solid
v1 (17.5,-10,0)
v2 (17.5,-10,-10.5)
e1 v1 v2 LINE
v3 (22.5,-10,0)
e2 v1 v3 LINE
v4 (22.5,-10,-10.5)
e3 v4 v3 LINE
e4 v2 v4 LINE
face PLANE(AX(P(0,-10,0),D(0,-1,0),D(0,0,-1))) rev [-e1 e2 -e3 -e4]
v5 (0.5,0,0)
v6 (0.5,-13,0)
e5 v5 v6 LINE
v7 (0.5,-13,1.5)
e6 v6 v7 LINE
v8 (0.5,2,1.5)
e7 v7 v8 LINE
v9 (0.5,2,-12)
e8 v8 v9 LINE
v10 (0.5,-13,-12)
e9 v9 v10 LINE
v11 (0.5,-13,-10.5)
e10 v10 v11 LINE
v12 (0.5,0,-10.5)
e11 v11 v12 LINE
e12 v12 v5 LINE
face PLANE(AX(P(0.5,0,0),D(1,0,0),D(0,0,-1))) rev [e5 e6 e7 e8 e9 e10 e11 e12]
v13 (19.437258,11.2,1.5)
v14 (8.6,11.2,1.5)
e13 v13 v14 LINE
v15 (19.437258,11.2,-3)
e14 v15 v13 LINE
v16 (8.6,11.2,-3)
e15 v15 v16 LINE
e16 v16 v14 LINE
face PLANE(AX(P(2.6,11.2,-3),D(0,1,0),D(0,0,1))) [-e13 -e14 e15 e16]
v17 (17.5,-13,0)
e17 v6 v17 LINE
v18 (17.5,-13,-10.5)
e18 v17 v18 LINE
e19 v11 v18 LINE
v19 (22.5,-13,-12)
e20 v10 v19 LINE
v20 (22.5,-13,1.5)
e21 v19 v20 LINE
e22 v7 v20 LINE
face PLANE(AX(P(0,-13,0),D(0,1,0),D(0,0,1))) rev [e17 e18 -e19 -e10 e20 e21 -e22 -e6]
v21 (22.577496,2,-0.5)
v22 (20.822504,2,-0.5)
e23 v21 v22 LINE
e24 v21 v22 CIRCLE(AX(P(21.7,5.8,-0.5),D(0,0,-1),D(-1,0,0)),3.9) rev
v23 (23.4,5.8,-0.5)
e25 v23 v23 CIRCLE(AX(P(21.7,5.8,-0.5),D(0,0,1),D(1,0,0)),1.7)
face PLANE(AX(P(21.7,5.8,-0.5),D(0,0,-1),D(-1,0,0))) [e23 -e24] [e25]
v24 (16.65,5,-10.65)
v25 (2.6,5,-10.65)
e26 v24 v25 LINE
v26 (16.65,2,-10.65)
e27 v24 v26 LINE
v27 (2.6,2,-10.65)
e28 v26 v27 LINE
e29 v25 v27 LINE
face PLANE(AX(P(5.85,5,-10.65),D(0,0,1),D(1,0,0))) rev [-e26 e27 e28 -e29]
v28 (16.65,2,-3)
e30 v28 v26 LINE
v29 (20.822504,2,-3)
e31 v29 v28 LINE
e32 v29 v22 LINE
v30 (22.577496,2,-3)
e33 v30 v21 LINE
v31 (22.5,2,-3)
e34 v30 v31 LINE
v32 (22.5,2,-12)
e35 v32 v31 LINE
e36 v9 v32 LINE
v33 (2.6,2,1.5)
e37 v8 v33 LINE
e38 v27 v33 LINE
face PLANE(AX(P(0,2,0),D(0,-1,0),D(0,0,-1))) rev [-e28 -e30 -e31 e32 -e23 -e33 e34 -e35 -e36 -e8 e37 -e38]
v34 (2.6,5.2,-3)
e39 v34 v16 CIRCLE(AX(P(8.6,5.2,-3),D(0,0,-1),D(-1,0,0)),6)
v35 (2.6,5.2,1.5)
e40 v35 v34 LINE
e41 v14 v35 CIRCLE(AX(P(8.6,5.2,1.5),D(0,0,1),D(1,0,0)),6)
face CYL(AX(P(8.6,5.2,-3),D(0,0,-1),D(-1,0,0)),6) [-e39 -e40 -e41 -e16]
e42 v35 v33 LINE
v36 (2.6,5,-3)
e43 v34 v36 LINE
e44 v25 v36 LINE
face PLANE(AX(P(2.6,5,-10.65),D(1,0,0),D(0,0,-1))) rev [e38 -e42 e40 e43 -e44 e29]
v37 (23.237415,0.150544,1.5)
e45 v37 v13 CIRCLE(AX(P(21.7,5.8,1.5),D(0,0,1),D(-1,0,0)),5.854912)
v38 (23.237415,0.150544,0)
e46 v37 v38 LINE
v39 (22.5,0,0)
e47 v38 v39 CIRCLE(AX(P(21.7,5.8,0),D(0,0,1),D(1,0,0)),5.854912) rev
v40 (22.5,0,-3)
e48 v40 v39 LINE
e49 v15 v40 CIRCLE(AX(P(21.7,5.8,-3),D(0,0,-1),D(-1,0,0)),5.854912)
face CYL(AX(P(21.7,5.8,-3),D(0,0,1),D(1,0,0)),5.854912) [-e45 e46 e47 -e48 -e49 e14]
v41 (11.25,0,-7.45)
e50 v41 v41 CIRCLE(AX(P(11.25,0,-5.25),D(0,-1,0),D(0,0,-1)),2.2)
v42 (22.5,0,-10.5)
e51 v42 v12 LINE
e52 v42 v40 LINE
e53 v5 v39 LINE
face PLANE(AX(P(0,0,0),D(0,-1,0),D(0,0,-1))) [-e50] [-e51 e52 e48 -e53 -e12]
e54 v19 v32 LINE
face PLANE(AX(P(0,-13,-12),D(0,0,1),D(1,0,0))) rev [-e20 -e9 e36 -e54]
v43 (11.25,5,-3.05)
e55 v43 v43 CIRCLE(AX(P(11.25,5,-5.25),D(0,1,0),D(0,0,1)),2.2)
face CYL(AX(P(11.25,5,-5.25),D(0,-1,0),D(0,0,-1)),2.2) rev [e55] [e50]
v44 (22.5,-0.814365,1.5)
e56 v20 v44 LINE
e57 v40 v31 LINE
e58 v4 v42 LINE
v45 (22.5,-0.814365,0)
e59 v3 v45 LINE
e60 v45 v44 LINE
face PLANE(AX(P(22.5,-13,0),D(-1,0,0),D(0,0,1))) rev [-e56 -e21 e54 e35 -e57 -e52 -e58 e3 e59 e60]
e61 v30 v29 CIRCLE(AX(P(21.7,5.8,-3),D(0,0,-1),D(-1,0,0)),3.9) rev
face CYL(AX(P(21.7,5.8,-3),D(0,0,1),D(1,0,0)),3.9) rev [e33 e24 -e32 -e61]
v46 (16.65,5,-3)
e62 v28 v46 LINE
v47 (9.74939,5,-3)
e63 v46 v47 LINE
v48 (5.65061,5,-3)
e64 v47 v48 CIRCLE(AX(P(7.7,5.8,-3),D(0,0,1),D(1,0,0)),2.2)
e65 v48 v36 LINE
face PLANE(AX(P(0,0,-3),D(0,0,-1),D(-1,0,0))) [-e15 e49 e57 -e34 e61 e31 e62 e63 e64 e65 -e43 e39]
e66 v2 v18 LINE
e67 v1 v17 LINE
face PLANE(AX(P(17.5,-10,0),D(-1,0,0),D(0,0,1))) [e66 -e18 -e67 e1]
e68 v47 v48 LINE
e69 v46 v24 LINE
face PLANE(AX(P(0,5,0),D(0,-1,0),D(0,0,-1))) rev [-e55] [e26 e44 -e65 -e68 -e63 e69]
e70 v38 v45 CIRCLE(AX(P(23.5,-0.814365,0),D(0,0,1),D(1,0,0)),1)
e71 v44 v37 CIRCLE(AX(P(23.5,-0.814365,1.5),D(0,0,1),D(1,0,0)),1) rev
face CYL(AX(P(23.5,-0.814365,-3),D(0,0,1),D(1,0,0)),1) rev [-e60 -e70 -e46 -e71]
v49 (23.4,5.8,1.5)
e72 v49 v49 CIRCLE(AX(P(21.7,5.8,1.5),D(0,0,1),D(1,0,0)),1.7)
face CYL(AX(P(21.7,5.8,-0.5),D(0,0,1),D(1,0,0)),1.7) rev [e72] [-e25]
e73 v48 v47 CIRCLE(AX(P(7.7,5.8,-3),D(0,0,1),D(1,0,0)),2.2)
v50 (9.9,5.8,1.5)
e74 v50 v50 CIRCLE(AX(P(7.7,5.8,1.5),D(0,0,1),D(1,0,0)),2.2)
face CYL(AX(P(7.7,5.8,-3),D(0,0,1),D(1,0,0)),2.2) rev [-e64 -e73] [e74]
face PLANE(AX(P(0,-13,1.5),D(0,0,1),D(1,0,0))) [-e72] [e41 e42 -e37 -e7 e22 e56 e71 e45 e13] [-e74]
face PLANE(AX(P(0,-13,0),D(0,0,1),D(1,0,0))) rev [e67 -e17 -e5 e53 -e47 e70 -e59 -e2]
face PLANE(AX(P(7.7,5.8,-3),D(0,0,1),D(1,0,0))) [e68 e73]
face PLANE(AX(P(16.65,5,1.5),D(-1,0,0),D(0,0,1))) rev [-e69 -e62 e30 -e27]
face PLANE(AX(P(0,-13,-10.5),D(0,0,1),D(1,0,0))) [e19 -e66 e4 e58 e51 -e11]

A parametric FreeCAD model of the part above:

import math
import FreeCAD as App
import Part
import Sketcher
from FreeCAD import Vector
Q = App.Units.Quantity


def edges_at(feature, points):
    """Names of the edges that pass closest to the given points."""
    edges = feature.Shape.Edges
    near = lambda p: min(range(len(edges)), key=lambda i: edges[i].distToShape(Part.Vertex(*p))[0])
    return sorted({f"Edge{near(p) + 1}" for p in points})

doc = App.newDocument("Part")
body = doc.addObject("PartDesign::Body", "Body")

# Sketch on XZ plane
sketch1 = body.newObject("Sketcher::SketchObject", "Sketch")
sketch1.AttachmentSupport = (doc.getObject("XZ_Plane"), [""])
sketch1.MapMode = "FlatFace"
sketch1.addGeometry([
    Part.LineSegment(Vector(0, -10, 0), Vector(0, 0, 0)),
    Part.LineSegment(Vector(0, 0, 0), Vector(22, 0, 0)),
    Part.LineSegment(Vector(22, 0, 0), Vector(22, -10, 0)),
    Part.LineSegment(Vector(22, -10, 0), Vector(0, -10, 0)),
], False)
sketch1.addConstraint([
    Sketcher.Constraint("Coincident", 0, 2, 1, 1),
    Sketcher.Constraint("Coincident", 1, 2, 2, 1),
    Sketcher.Constraint("Coincident", 2, 2, 3, 1),
    Sketcher.Constraint("Coincident", 3, 2, 0, 1),
    Sketcher.Constraint("Vertical", 0),
    Sketcher.Constraint("Horizontal", 1),
    Sketcher.Constraint("Vertical", 2),
    Sketcher.Constraint("Horizontal", 3),
    Sketcher.Constraint("Coincident", 0, 2, -1, 1),
    Sketcher.Constraint("DistanceX", 1, 1, 1, 2, Q("21.5 mm")),
    Sketcher.Constraint("DistanceY", 0, 1, 0, 2, Q("10.5 mm")),
])
pad1 = body.newObject("PartDesign::Pad", "Pad")
pad1.Profile = sketch1
pad1.Length = 2
pad1.Reversed = True

# Sketch on XZ plane
sketch2 = body.newObject("Sketcher::SketchObject", "Sketch001")
sketch2.AttachmentSupport = (doc.getObject("XZ_Plane"), [""])
sketch2.MapMode = "FlatFace"
sketch2.AttachmentOffset = App.Placement(Vector(0, 0, -2), App.Rotation())
sketch2.addGeometry([
    Part.LineSegment(Vector(0, -10.5, 0), Vector(22.5, -10.5, 0)),  # 0
    Part.LineSegment(Vector(22.5, -10.5, 0), Vector(22.5, -12, 0)),  # 1
    Part.LineSegment(Vector(22.5, -12, 0), Vector(-1, -12, 0)),  # 2
    Part.LineSegment(Vector(-1, -12, 0), Vector(-1, 1.5, 0)),  # 3
    Part.LineSegment(Vector(-1, 1.5, 0), Vector(22.5, 1.5, 0)),  # 4
    Part.LineSegment(Vector(22.5, 1.5, 0), Vector(22.5, 0, 0)),  # 5
    Part.LineSegment(Vector(22.5, 0, 0), Vector(0, 0, 0)),  # 6
    Part.LineSegment(Vector(0, 0, 0), Vector(0, -10.5, 0)),  # 7
], False)
sketch2.addConstraint([
    Sketcher.Constraint("Coincident", 0, 2, 1, 1),
    Sketcher.Constraint("Coincident", 1, 2, 2, 1),
    Sketcher.Constraint("Coincident", 2, 2, 3, 1),
    Sketcher.Constraint("Coincident", 3, 2, 4, 1),
    Sketcher.Constraint("Coincident", 4, 2, 5, 1),
    Sketcher.Constraint("Coincident", 5, 2, 6, 1),
    Sketcher.Constraint("Coincident", 6, 2, 7, 1),
    Sketcher.Constraint("Coincident", 7, 2, 0, 1),
    Sketcher.Constraint("Horizontal", 0),
    Sketcher.Constraint("Vertical", 1),
    Sketcher.Constraint("Horizontal", 2),
    Sketcher.Constraint("Vertical", 3),
    Sketcher.Constraint("Horizontal", 4),
    Sketcher.Constraint("Vertical", 5),
    Sketcher.Constraint("Horizontal", 6),
    Sketcher.Constraint("Vertical", 7),
    Sketcher.Constraint("Coincident", 6, 2, -1, 1),
    Sketcher.Constraint("Vertical", 1, 2, 4, 2),
    Sketcher.Constraint("Equal", 1, 5),
    Sketcher.Constraint("DistanceX", 0, 1, 0, 2, Q("22.5 mm")),
    Sketcher.Constraint("DistanceX", 2, 2, 2, 1, Q("23.5 mm")),
    Sketcher.Constraint("DistanceY", 1, 2, 1, 1, Q("1.5 mm")),
    Sketcher.Constraint("DistanceY", 3, 1, 3, 2, Q("13.5 mm")),
])
pad2 = body.newObject("PartDesign::Pad", "Pad001")
pad2.Profile = sketch2
pad2.Length = 15

# Sketch on XY plane
sketch3 = body.newObject("Sketcher::SketchObject", "Sketch002")
sketch3.AttachmentSupport = (doc.getObject("XY_Plane"), [""])
sketch3.MapMode = "FlatFace"
sketch3.addGeometry([
    Part.LineSegment(Vector(22.5, 2, 0), Vector(22.5, 0, 0)),
    Part.LineSegment(Vector(22.5, 0, 0), Vector(21.5, 0, 0)),
    Part.LineSegment(Vector(21.5, 0, 0), Vector(21.5, 2, 0)),
    Part.LineSegment(Vector(21.5, 2, 0), Vector(22.5, 2, 0)),
], False)
sketch3.addConstraint([
    Sketcher.Constraint("Coincident", 0, 2, 1, 1),
    Sketcher.Constraint("Coincident", 1, 2, 2, 1),
    Sketcher.Constraint("Coincident", 2, 2, 3, 1),
    Sketcher.Constraint("Coincident", 3, 2, 0, 1),
    Sketcher.Constraint("Vertical", 0),
    Sketcher.Constraint("Horizontal", 1),
    Sketcher.Constraint("Vertical", 2),
    Sketcher.Constraint("Horizontal", 3),
    Sketcher.Constraint("PointOnObject", 0, 2, -1),
    Sketcher.Constraint("DistanceX", 1, 2, 1, 1, Q("1 mm")),
    Sketcher.Constraint("DistanceY", 0, 2, 0, 1, Q("2 mm")),
    Sketcher.Constraint("DistanceX", -1, 1, 0, 2, Q("22.5 mm")),
])
pad3 = body.newObject("PartDesign::Pad", "Pad002")
pad3.Profile = sketch3
pad3.Type = "UpToFirst"
pad3.Reversed = True

# Sketch on XZ plane
sketch4 = body.newObject("Sketcher::SketchObject", "Sketch003")
sketch4.AttachmentSupport = (doc.getObject("XZ_Plane"), [""])
sketch4.MapMode = "FlatFace"
sketch4.AttachmentOffset = App.Placement(Vector(0, 0, 13), App.Rotation())
sketch4.addGeometry([
    Part.LineSegment(Vector(18, -10, 0), Vector(22, -10, 0)),
    Part.LineSegment(Vector(22, -10, 0), Vector(22, 2, 0)),
    Part.LineSegment(Vector(22, 2, 0), Vector(18, 2, 0)),
    Part.LineSegment(Vector(18, 2, 0), Vector(18, -10, 0)),
], False)
sketch4.addConstraint([
    Sketcher.Constraint("Coincident", 0, 2, 1, 1),
    Sketcher.Constraint("Coincident", 1, 2, 2, 1),
    Sketcher.Constraint("Coincident", 2, 2, 3, 1),
    Sketcher.Constraint("Coincident", 3, 2, 0, 1),
    Sketcher.Constraint("Horizontal", 0),
    Sketcher.Constraint("Vertical", 1),
    Sketcher.Constraint("Horizontal", 2),
    Sketcher.Constraint("Vertical", 3),
    Sketcher.Constraint("DistanceX", 0, 1, 0, 2, Q("5 mm")),
    Sketcher.Constraint("DistanceY", 1, 1, 1, 2, Q("12 mm")),
    Sketcher.Constraint("DistanceX", -1, 1, 0, 2, Q("22.5 mm")),
    Sketcher.Constraint("DistanceY", 0, 2, -1, 1, Q("10.5 mm")),
])
pad4 = body.newObject("PartDesign::Pad", "Pad003")
pad4.Profile = sketch4
pad4.Length = 3
pad4.Reversed = True
body2 = doc.addObject("PartDesign::Body", "Body001")

# Sketch on XY plane
sketch5 = body2.newObject("Sketcher::SketchObject", "Sketch004")
sketch5.AttachmentSupport = (doc.getObject("XY_Plane001"), [""])
sketch5.MapMode = "FlatFace"
sketch5.AttachmentOffset = App.Placement(Vector(0, 0, 1.5), App.Rotation())
sketch5.addGeometry([
    Part.LineSegment(Vector(22.5, 2, 0), Vector(22.5, 0, 0)),
    Part.ArcOfCircle(Part.Circle(Vector(21.7, 5.8, 0), Vector(0, 0, 1), 5.9), math.radians(-82), math.radians(220)),
    Part.LineSegment(Vector(17.2, 2, 0), Vector(22.5, 2, 0)),
    Part.Circle(Vector(21.7, 5.8, 0), Vector(0, 0, 1), 1.7),
], False)
sketch5.addConstraint([
    Sketcher.Constraint("Coincident", 0, 2, 1, 1),
    Sketcher.Constraint("Coincident", 1, 2, 2, 1),
    Sketcher.Constraint("Coincident", 2, 2, 0, 1),
    Sketcher.Constraint("Vertical", 0),
    Sketcher.Constraint("Horizontal", 2),
    Sketcher.Constraint("Coincident", 3, 3, 1, 3),
    Sketcher.Constraint("PointOnObject", 0, 2, -1),
    Sketcher.Constraint("Diameter", 3, Q("3.4 mm")),
    Sketcher.Constraint("DistanceY", 0, 2, 0, 1, Q("2 mm")),
    Sketcher.Constraint("DistanceX", -1, 1, 1, 3, Q("21.7 mm")),
    Sketcher.Constraint("DistanceY", -1, 1, 1, 3, Q("5.8 mm")),
    Sketcher.Constraint("DistanceX", -1, 1, 0, 2, Q("22.5 mm")),
])
pad5 = body2.newObject("PartDesign::Pad", "Pad004")
pad5.Profile = sketch5
pad5.Length = 2
pad5.Reversed = True
doc.recompute()

boolean = body.newObject("PartDesign::Boolean", "Boolean")
boolean.Type = "Fuse"
boolean.addObjects([body2])

# Sketch on XY plane
sketch6 = body.newObject("Sketcher::SketchObject", "Sketch005")
sketch6.AttachmentSupport = (doc.getObject("XY_Plane"), [""])
sketch6.MapMode = "FlatFace"
sketch6.AttachmentOffset = App.Placement(Vector(0, 0, -0.5), App.Rotation())
sketch6.addGeometry([
    Part.LineSegment(Vector(22.5, 2, 0), Vector(22.58, 2, 0)),  # 0
    Part.ArcOfCircle(Part.Circle(Vector(21.7, 5.8, 0), Vector(0, 0, 1), 3.9), math.radians(-77), math.radians(257)),  # 1
    Part.LineSegment(Vector(20.82, 2, 0), Vector(17.25, 2, 0)),  # 2
    Part.ArcOfCircle(Part.Circle(Vector(21.7, 5.8, 0), Vector(0, 0, 1), 5.85), math.radians(-82), math.radians(220)),  # 3
    Part.LineSegment(Vector(22.5, 0, 0), Vector(22.5, 2, 0)),  # 4
], False)
sketch6.addConstraint([
    Sketcher.Constraint("Coincident", 0, 2, 1, 1),
    Sketcher.Constraint("Coincident", 1, 2, 2, 1),
    Sketcher.Constraint("Coincident", 2, 2, 3, 2),
    Sketcher.Constraint("Coincident", 3, 1, 4, 1),
    Sketcher.Constraint("Coincident", 4, 2, 0, 1),
    Sketcher.Constraint("Horizontal", 0),
    Sketcher.Constraint("Horizontal", 2),
    Sketcher.Constraint("Vertical", 4),
    Sketcher.Constraint("Coincident", 3, 3, 1, 3),
    Sketcher.Constraint("PointOnObject", 3, 1, -1),
    Sketcher.Constraint("Horizontal", 0, 2, 1, 2),
    Sketcher.Constraint("Radius", 1, Q("3.9 mm")),
    Sketcher.Constraint("DistanceY", 4, 1, 4, 2, Q("2 mm")),
    Sketcher.Constraint("DistanceX", -1, 1, 1, 3, Q("21.7 mm")),
    Sketcher.Constraint("DistanceY", -1, 1, 1, 3, Q("5.8 mm")),
    Sketcher.Constraint("DistanceX", -1, 1, 3, 1, Q("22.5 mm")),
])
pad6 = body.newObject("PartDesign::Pad", "Pad005")
pad6.Profile = sketch6
pad6.Length = 2.5
pad6.Reversed = True
doc.recompute()

fillet = body.newObject("PartDesign::Fillet", "Fillet")
fillet.Base = (pad6, edges_at(pad6, [(22.5, 0, 0.75), (17.246, 2, -0.75)]))
fillet.Radius = 1

# Sketch on XZ plane
sketch7 = body.newObject("Sketcher::SketchObject", "Sketch006")
sketch7.AttachmentSupport = (doc.getObject("XZ_Plane"), [""])
sketch7.MapMode = "FlatFace"
sketch7.AttachmentOffset = App.Placement(Vector(0, 0, 13), App.Rotation())
sketch7.addGeometry([
    Part.LineSegment(Vector(-1, 0, 0), Vector(-1, -10.5, 0)),
    Part.LineSegment(Vector(-1, -10.5, 0), Vector(0, -10.5, 0)),
    Part.LineSegment(Vector(0, -10.5, 0), Vector(0, 0, 0)),
    Part.LineSegment(Vector(0, 0, 0), Vector(-1, 0, 0)),
], False)
sketch7.addConstraint([
    Sketcher.Constraint("Coincident", 0, 2, 1, 1),
    Sketcher.Constraint("Coincident", 1, 2, 2, 1),
    Sketcher.Constraint("Coincident", 2, 2, 3, 1),
    Sketcher.Constraint("Coincident", 3, 2, 0, 1),
    Sketcher.Constraint("Vertical", 0),
    Sketcher.Constraint("Horizontal", 1),
    Sketcher.Constraint("Vertical", 2),
    Sketcher.Constraint("Horizontal", 3),
    Sketcher.Constraint("Coincident", 2, 2, -1, 1),
    Sketcher.Constraint("DistanceX", 1, 1, 1, 2, Q("1 mm")),
    Sketcher.Constraint("DistanceY", 0, 2, 0, 1, Q("10.5 mm")),
])
pocket1 = body.newObject("PartDesign::Pocket", "Pocket")
pocket1.Profile = sketch7
pocket1.Length = 13

# Sketch on YZ plane
sketch8 = body.newObject("Sketcher::SketchObject", "Sketch007")
sketch8.AttachmentSupport = (doc.getObject("YZ_Plane"), [""])
sketch8.MapMode = "FlatFace"
sketch8.AttachmentOffset = App.Placement(Vector(0, 0, -1), App.Rotation())
sketch8.addGeometry([
    Part.LineSegment(Vector(2, -12, 0), Vector(-13, -12, 0)),  # 0
    Part.LineSegment(Vector(-13, -12, 0), Vector(-13, -10.5, 0)),  # 1
    Part.LineSegment(Vector(-13, -10.5, 0), Vector(0, -10.5, 0)),  # 2
    Part.LineSegment(Vector(0, -10.5, 0), Vector(0, 0, 0)),  # 3
    Part.LineSegment(Vector(0, 0, 0), Vector(-13, 0, 0)),  # 4
    Part.LineSegment(Vector(-13, 0, 0), Vector(-13, 1.5, 0)),  # 5
    Part.LineSegment(Vector(-13, 1.5, 0), Vector(2, 1.5, 0)),  # 6
    Part.LineSegment(Vector(2, 1.5, 0), Vector(2, -12, 0)),  # 7
], False)
sketch8.addConstraint([
    Sketcher.Constraint("Coincident", 0, 2, 1, 1),
    Sketcher.Constraint("Coincident", 1, 2, 2, 1),
    Sketcher.Constraint("Coincident", 2, 2, 3, 1),
    Sketcher.Constraint("Coincident", 3, 2, 4, 1),
    Sketcher.Constraint("Coincident", 4, 2, 5, 1),
    Sketcher.Constraint("Coincident", 5, 2, 6, 1),
    Sketcher.Constraint("Coincident", 6, 2, 7, 1),
    Sketcher.Constraint("Coincident", 7, 2, 0, 1),
    Sketcher.Constraint("Horizontal", 0),
    Sketcher.Constraint("Vertical", 1),
    Sketcher.Constraint("Horizontal", 2),
    Sketcher.Constraint("Vertical", 3),
    Sketcher.Constraint("Horizontal", 4),
    Sketcher.Constraint("Vertical", 5),
    Sketcher.Constraint("Horizontal", 6),
    Sketcher.Constraint("Vertical", 7),
    Sketcher.Constraint("Coincident", 3, 2, -1, 1),
    Sketcher.Constraint("Vertical", 1, 2, 4, 2),
    Sketcher.Constraint("Equal", 1, 5),
    Sketcher.Constraint("DistanceX", 0, 2, 0, 1, Q("15 mm")),
    Sketcher.Constraint("DistanceX", 2, 1, 2, 2, Q("13 mm")),
    Sketcher.Constraint("DistanceY", 1, 1, 1, 2, Q("1.5 mm")),
    Sketcher.Constraint("DistanceY", 3, 1, 3, 2, Q("10.5 mm")),
])
pocket2 = body.newObject("PartDesign::Pocket", "Pocket001")
pocket2.Profile = sketch8
pocket2.Length = 1.5
pocket2.Reversed = True

# Sketch on XZ plane
sketch9 = body.newObject("Sketcher::SketchObject", "Sketch008")
sketch9.AttachmentSupport = (doc.getObject("XZ_Plane"), [""])
sketch9.MapMode = "FlatFace"
sketch9.AttachmentOffset = App.Placement(Vector(0, 0, -2), App.Rotation())
sketch9.addGeometry([
    Part.LineSegment(Vector(16.6, -10.7, 0), Vector(2.6, -10.7, 0)),  # 0
    Part.LineSegment(Vector(2.6, -10.7, 0), Vector(2.6, 1.5, 0)),  # 1
    Part.LineSegment(Vector(2.6, 1.5, 0), Vector(16.6, 1.5, 0)),  # 2
    Part.LineSegment(Vector(16.6, 1.5, 0), Vector(16.6, -10.7, 0)),  # 3
    Part.Circle(Vector(11.2, -5.2, 0), Vector(0, 0, 1), 2.2),  # 4
], False)
sketch9.addConstraint([
    Sketcher.Constraint("Coincident", 0, 2, 1, 1),
    Sketcher.Constraint("Coincident", 1, 2, 2, 1),
    Sketcher.Constraint("Coincident", 2, 2, 3, 1),
    Sketcher.Constraint("Coincident", 3, 2, 0, 1),
    Sketcher.Constraint("Horizontal", 0),
    Sketcher.Constraint("Vertical", 1),
    Sketcher.Constraint("Horizontal", 2),
    Sketcher.Constraint("Vertical", 3),
    Sketcher.Constraint("Diameter", 4, Q("4.4 mm")),
    Sketcher.Constraint("DistanceX", 0, 2, 0, 1, Q("14.05 mm")),
    Sketcher.Constraint("DistanceY", 1, 1, 1, 2, Q("12.15 mm")),
    Sketcher.Constraint("DistanceX", -1, 1, 0, 2, Q("2.6 mm")),
    Sketcher.Constraint("DistanceY", -1, 1, 1, 2, Q("1.5 mm")),
    Sketcher.Constraint("DistanceY", 0, 2, 4, 3, Q("5.4 mm")),
    Sketcher.Constraint("DistanceX", 4, 3, 2, 2, Q("5.4 mm")),
])
pad7 = body.newObject("PartDesign::Pad", "Pad006")
pad7.Profile = sketch9
pad7.Length = 3
pad7.Reversed = True

# Sketch on XY plane
sketch10 = body.newObject("Sketcher::SketchObject", "Sketch009")
sketch10.AttachmentSupport = (doc.getObject("XY_Plane"), [""])
sketch10.MapMode = "FlatFace"
sketch10.AttachmentOffset = App.Placement(Vector(0, 0, 1.5), App.Rotation())
sketch10.addGeometry([
    Part.LineSegment(Vector(2.6, 11.2, 0), Vector(2.6, 5, 0)),  # 0
    Part.LineSegment(Vector(2.6, 5, 0), Vector(15.9, 5, 0)),  # 1
    Part.ArcOfCircle(Part.Circle(Vector(21.7, 5.8, 0), Vector(0, 0, 1), 5.9), math.radians(113), math.radians(188)),  # 2
    Part.LineSegment(Vector(19.4, 11.2, 0), Vector(2.6, 11.2, 0)),  # 3
    Part.Circle(Vector(7.7, 5.8, 0), Vector(0, 0, 1), 0.7),  # 4
], False)
sketch10.addConstraint([
    Sketcher.Constraint("Coincident", 0, 2, 1, 1),
    Sketcher.Constraint("Coincident", 1, 2, 2, 2),
    Sketcher.Constraint("Coincident", 2, 1, 3, 1),
    Sketcher.Constraint("Coincident", 3, 2, 0, 1),
    Sketcher.Constraint("Vertical", 0),
    Sketcher.Constraint("Horizontal", 1),
    Sketcher.Constraint("Horizontal", 3),
    Sketcher.Constraint("Horizontal", 2, 3, 4, 3),
    Sketcher.Constraint("DistanceX", 1, 1, 1, 2, Q("13.3 mm")),
    Sketcher.Constraint("DistanceY", 0, 2, 0, 1, Q("6.2 mm")),
    Sketcher.Constraint("DistanceY", -1, 1, 0, 2, Q("5 mm")),
    Sketcher.Constraint("DistanceX", 4, 3, 2, 3, Q("14 mm")),
    Sketcher.Constraint("DistanceX", -1, 1, 2, 3, Q("21.7 mm")),
    Sketcher.Constraint("DistanceY", -1, 1, 2, 3, Q("5.8 mm")),
    Sketcher.Constraint("DistanceX", -1, 1, 0, 2, Q("2.6 mm")),
    Sketcher.Constraint("Diameter", 4, Q("1.340378 mm")),
])
pad8 = body.newObject("PartDesign::Pad", "Pad007")
pad8.Profile = sketch10
pad8.Length = 4.5
pad8.Reversed = True

# Sketch on XY plane
sketch11 = body.newObject("Sketcher::SketchObject", "Sketch010")
sketch11.AttachmentSupport = (doc.getObject("XY_Plane"), [""])
sketch11.MapMode = "FlatFace"
sketch11.AttachmentOffset = App.Placement(Vector(0, 0, 1.5), App.Rotation())
sketch11.addGeometry(Part.Circle(Vector(7.7, 5.8, 0), Vector(0, 0, 1), 2.2), False)
sketch11.addConstraint([
    Sketcher.Constraint("Diameter", 0, Q("4.4 mm")),
    Sketcher.Constraint("DistanceX", -1, 1, 0, 3, Q("7.7 mm")),
    Sketcher.Constraint("DistanceY", -1, 1, 0, 3, Q("5.8 mm")),
])
pocket3 = body.newObject("PartDesign::Pocket", "Pocket002")
pocket3.Profile = sketch11
pocket3.Length = 4.5

# Sketch on XZ plane
sketch12 = body.newObject("Sketcher::SketchObject", "Sketch011")
sketch12.AttachmentSupport = (doc.getObject("XZ_Plane"), [""])
sketch12.MapMode = "FlatFace"
sketch12.AttachmentOffset = App.Placement(Vector(0, 0, 2.5), App.Rotation())
sketch12.addGeometry(Part.Circle(Vector(11.2, -5.2, 0), Vector(0, 0, 1), 2.2), False)
sketch12.addConstraint([
    Sketcher.Constraint("Diameter", 0, Q("4.4 mm")),
    Sketcher.Constraint("DistanceX", -1, 1, 0, 3, Q("11.25 mm")),
    Sketcher.Constraint("DistanceY", 0, 3, -1, 1, Q("5.25 mm")),
])
pocket4 = body.newObject("PartDesign::Pocket", "Pocket003")
pocket4.Profile = sketch12
pocket4.Length = 4.5
doc.recompute()

fillet2 = body.newObject("PartDesign::Fillet", "Fillet001")
fillet2.Base = (pocket4, edges_at(pocket4, [(2.6, 11.2, -0.75)]))
fillet2.Radius = 6

doc.recompute()
